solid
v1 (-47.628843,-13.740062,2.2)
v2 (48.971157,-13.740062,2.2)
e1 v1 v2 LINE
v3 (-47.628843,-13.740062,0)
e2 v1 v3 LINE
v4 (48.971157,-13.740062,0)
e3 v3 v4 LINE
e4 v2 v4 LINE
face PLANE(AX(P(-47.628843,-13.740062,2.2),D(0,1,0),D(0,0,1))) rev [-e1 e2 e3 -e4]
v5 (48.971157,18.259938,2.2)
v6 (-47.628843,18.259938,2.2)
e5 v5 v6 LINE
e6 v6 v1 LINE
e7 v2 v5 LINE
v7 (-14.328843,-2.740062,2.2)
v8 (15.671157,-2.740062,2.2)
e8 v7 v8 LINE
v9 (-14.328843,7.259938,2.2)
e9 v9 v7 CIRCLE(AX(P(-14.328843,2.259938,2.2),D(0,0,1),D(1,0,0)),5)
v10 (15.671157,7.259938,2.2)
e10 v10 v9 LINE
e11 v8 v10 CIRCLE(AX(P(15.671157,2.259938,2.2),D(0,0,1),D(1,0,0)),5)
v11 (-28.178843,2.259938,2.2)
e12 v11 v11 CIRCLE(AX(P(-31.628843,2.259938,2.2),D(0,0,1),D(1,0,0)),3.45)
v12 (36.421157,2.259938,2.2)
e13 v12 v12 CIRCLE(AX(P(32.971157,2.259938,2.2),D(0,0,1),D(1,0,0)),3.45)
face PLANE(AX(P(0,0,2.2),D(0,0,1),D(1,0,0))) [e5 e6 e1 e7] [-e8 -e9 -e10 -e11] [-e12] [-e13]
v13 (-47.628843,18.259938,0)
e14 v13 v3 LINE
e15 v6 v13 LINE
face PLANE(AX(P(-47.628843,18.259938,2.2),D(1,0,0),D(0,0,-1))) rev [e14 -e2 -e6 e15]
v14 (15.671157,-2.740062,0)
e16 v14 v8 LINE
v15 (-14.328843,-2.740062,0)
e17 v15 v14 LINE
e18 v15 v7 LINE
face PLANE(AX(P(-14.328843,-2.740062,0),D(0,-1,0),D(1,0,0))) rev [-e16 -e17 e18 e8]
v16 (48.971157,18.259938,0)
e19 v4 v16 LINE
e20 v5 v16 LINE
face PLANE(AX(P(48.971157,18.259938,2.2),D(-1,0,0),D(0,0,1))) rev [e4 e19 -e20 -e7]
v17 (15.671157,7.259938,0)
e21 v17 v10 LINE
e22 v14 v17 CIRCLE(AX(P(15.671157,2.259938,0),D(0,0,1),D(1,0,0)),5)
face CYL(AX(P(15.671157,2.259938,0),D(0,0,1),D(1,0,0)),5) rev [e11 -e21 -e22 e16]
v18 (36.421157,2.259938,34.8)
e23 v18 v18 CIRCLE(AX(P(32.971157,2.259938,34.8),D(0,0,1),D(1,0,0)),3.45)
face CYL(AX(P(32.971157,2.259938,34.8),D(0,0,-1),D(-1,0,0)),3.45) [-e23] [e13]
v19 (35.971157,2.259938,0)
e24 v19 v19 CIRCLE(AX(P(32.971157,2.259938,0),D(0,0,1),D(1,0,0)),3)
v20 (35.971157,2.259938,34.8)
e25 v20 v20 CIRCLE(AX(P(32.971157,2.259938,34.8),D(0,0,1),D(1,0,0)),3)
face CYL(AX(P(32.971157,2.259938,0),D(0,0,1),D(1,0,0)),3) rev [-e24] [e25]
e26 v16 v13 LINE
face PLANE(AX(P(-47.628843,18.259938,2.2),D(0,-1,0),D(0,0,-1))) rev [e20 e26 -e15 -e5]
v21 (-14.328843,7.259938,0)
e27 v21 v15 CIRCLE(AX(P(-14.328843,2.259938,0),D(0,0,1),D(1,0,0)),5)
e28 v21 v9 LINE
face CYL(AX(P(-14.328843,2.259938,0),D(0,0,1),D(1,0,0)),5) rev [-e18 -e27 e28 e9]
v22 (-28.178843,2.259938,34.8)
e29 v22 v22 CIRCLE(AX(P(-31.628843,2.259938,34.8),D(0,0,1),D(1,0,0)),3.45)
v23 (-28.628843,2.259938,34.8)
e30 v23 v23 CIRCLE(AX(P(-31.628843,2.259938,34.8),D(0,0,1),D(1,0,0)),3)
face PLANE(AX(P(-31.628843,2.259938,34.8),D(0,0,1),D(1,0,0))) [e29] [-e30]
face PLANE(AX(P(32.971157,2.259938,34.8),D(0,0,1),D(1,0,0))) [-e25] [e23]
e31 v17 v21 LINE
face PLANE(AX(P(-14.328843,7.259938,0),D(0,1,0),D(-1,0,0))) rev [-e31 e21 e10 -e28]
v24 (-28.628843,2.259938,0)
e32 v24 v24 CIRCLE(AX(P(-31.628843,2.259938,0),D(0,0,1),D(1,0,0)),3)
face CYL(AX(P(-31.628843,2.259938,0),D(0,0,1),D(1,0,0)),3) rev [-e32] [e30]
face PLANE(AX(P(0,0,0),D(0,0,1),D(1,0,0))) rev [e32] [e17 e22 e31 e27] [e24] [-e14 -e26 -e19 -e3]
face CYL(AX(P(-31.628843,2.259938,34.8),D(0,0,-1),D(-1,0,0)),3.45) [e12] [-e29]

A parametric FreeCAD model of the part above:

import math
import FreeCAD as App
import Part
import Sketcher

V = App.Vector
Q = App.Units.Quantity

doc = App.newDocument("Part")
body = doc.addObject("PartDesign::Body", "Body")

# Sketch on XY plane
sketch1 = doc.addObject("Sketcher::SketchObject", "Sketch")
body.addObject(sketch1)
sketch1.AttachmentSupport = (doc.XY_Plane, [""])
sketch1.MapMode = "FlatFace"
sketch1.addGeometry(Part.LineSegment(V(-48, 18, 0), V(-48, -14, 0)), False)
sketch1.addGeometry(Part.LineSegment(V(-48, -14, 0), V(49, -14, 0)), False)
sketch1.addGeometry(Part.LineSegment(V(49, -14, 0), V(49, 18, 0)), False)
sketch1.addGeometry(Part.LineSegment(V(49, 18, 0), V(-48, 18, 0)), False)
sketch1.addConstraint(Sketcher.Constraint("Coincident", 0, 2, 1, 1))
sketch1.addConstraint(Sketcher.Constraint("Coincident", 1, 2, 2, 1))
sketch1.addConstraint(Sketcher.Constraint("Coincident", 2, 2, 3, 1))
sketch1.addConstraint(Sketcher.Constraint("Coincident", 3, 2, 0, 1))
sketch1.addConstraint(Sketcher.Constraint("Vertical", 0))
sketch1.addConstraint(Sketcher.Constraint("Horizontal", 1))
sketch1.addConstraint(Sketcher.Constraint("Vertical", 2))
sketch1.addConstraint(Sketcher.Constraint("Horizontal", 3))
sketch1.addConstraint(Sketcher.Constraint("DistanceY", 0, 2, 0, 1, Q("32 mm")))
sketch1.addConstraint(Sketcher.Constraint("DistanceX", 1, 1, 1, 2, Q("96.6 mm")))
sketch1.addConstraint(Sketcher.Constraint("DistanceY", 0, 2, -1, 1, Q("13.740062 mm")))
sketch1.addConstraint(Sketcher.Constraint("DistanceX", 0, 2, -1, 1, Q("47.628843 mm")))
pad1 = doc.addObject("PartDesign::Pad", "Pad")
body.addObject(pad1)
pad1.Profile = sketch1
pad1.Length = 2.2

# Sketch on XY plane
sketch2 = doc.addObject("Sketcher::SketchObject", "Sketch001")
body.addObject(sketch2)
sketch2.AttachmentSupport = (doc.XY_Plane, [""])
sketch2.MapMode = "FlatFace"
sketch2.AttachmentOffset = App.Placement(V(0, 0, 2.2), App.Rotation())
sketch2.addGeometry(Part.Circle(V(-31.6, 2.3, 0), V(0, 0, 1), 3.5), False)
sketch2.addGeometry(Part.Circle(V(33, 2.3, 0), V(0, 0, 1), 3.5), False)
sketch2.addConstraint(Sketcher.Constraint("Equal", 0, 1))
sketch2.addConstraint(Sketcher.Constraint("Horizontal", 0, 3, 1, 3))
sketch2.addConstraint(Sketcher.Constraint("Diameter", 0, Q("6.9 mm")))
sketch2.addConstraint(Sketcher.Constraint("DistanceX", 0, 3, 1, 3, Q("64.6 mm")))
sketch2.addConstraint(Sketcher.Constraint("DistanceY", -1, 1, 0, 3, Q("2.259938 mm")))
sketch2.addConstraint(Sketcher.Constraint("DistanceX", 0, 3, -1, 1, Q("31.628843 mm")))
pad2 = doc.addObject("PartDesign::Pad", "Pad001")
body.addObject(pad2)
pad2.Profile = sketch2
pad2.Length = 32.6

# Sketch on XY plane
sketch3 = doc.addObject("Sketcher::SketchObject", "Sketch002")
body.addObject(sketch3)
sketch3.AttachmentSupport = (doc.XY_Plane, [""])
sketch3.MapMode = "FlatFace"
sketch3.AttachmentOffset = App.Placement(V(0, 0, 34.8), App.Rotation())
sketch3.addGeometry(Part.Circle(V(-31.6, 2.3, 0), V(0, 0, 1), 3), False)
sketch3.addGeometry(Part.Circle(V(33, 2.3, 0), V(0, 0, 1), 3), False)
sketch3.addGeometry(Part.LineSegment(V(15.7, 7.3, 0), V(-14.3, 7.3, 0)), False)
sketch3.addGeometry(Part.ArcOfCircle(Part.Circle(V(-14.3, 2.3, 0), V(0, 0, 1), 5), math.radians(90), math.radians(270)), False)
sketch3.addGeometry(Part.LineSegment(V(-14.3, -2.7, 0), V(15.7, -2.7, 0)), False)
sketch3.addGeometry(Part.ArcOfCircle(Part.Circle(V(15.7, 2.3, 0), V(0, 0, 1), 5), math.radians(-90), math.radians(90)), False)
sketch3.addConstraint(Sketcher.Constraint("Tangent", 2, 2, 3, 1))
sketch3.addConstraint(Sketcher.Constraint("Tangent", 3, 2, 4, 1))
sketch3.addConstraint(Sketcher.Constraint("Tangent", 4, 2, 5, 1))
sketch3.addConstraint(Sketcher.Constraint("Tangent", 5, 2, 2, 1))
sketch3.addConstraint(Sketcher.Constraint("Horizontal", 2))
sketch3.addConstraint(Sketcher.Constraint("Horizontal", 4))
sketch3.addConstraint(Sketcher.Constraint("Equal", 0, 1))
sketch3.addConstraint(Sketcher.Constraint("Horizontal", 0, 3, 1, 3))
sketch3.addConstraint(Sketcher.Constraint("Horizontal", 1, 3, 3, 3))
sketch3.addConstraint(Sketcher.Constraint("Diameter", 0, Q("6 mm")))
sketch3.addConstraint(Sketcher.Constraint("Radius", 3, Q("5 mm")))
sketch3.addConstraint(Sketcher.Constraint("DistanceX", 2, 2, 2, 1, Q("30 mm")))
sketch3.addConstraint(Sketcher.Constraint("DistanceX", 0, 3, 1, 3, Q("64.6 mm")))
sketch3.addConstraint(Sketcher.Constraint("DistanceX", 0, 3, 3, 3, Q("17.3 mm")))
sketch3.addConstraint(Sketcher.Constraint("DistanceY", -1, 1, 0, 3, Q("2.259938 mm")))
sketch3.addConstraint(Sketcher.Constraint("DistanceX", 0, 3, -1, 1, Q("31.628843 mm")))
pocket1 = doc.addObject("PartDesign::Pocket", "Pocket")
body.addObject(pocket1)
pocket1.Profile = sketch3
pocket1.Type = "ThroughAll"

doc.recompute()
